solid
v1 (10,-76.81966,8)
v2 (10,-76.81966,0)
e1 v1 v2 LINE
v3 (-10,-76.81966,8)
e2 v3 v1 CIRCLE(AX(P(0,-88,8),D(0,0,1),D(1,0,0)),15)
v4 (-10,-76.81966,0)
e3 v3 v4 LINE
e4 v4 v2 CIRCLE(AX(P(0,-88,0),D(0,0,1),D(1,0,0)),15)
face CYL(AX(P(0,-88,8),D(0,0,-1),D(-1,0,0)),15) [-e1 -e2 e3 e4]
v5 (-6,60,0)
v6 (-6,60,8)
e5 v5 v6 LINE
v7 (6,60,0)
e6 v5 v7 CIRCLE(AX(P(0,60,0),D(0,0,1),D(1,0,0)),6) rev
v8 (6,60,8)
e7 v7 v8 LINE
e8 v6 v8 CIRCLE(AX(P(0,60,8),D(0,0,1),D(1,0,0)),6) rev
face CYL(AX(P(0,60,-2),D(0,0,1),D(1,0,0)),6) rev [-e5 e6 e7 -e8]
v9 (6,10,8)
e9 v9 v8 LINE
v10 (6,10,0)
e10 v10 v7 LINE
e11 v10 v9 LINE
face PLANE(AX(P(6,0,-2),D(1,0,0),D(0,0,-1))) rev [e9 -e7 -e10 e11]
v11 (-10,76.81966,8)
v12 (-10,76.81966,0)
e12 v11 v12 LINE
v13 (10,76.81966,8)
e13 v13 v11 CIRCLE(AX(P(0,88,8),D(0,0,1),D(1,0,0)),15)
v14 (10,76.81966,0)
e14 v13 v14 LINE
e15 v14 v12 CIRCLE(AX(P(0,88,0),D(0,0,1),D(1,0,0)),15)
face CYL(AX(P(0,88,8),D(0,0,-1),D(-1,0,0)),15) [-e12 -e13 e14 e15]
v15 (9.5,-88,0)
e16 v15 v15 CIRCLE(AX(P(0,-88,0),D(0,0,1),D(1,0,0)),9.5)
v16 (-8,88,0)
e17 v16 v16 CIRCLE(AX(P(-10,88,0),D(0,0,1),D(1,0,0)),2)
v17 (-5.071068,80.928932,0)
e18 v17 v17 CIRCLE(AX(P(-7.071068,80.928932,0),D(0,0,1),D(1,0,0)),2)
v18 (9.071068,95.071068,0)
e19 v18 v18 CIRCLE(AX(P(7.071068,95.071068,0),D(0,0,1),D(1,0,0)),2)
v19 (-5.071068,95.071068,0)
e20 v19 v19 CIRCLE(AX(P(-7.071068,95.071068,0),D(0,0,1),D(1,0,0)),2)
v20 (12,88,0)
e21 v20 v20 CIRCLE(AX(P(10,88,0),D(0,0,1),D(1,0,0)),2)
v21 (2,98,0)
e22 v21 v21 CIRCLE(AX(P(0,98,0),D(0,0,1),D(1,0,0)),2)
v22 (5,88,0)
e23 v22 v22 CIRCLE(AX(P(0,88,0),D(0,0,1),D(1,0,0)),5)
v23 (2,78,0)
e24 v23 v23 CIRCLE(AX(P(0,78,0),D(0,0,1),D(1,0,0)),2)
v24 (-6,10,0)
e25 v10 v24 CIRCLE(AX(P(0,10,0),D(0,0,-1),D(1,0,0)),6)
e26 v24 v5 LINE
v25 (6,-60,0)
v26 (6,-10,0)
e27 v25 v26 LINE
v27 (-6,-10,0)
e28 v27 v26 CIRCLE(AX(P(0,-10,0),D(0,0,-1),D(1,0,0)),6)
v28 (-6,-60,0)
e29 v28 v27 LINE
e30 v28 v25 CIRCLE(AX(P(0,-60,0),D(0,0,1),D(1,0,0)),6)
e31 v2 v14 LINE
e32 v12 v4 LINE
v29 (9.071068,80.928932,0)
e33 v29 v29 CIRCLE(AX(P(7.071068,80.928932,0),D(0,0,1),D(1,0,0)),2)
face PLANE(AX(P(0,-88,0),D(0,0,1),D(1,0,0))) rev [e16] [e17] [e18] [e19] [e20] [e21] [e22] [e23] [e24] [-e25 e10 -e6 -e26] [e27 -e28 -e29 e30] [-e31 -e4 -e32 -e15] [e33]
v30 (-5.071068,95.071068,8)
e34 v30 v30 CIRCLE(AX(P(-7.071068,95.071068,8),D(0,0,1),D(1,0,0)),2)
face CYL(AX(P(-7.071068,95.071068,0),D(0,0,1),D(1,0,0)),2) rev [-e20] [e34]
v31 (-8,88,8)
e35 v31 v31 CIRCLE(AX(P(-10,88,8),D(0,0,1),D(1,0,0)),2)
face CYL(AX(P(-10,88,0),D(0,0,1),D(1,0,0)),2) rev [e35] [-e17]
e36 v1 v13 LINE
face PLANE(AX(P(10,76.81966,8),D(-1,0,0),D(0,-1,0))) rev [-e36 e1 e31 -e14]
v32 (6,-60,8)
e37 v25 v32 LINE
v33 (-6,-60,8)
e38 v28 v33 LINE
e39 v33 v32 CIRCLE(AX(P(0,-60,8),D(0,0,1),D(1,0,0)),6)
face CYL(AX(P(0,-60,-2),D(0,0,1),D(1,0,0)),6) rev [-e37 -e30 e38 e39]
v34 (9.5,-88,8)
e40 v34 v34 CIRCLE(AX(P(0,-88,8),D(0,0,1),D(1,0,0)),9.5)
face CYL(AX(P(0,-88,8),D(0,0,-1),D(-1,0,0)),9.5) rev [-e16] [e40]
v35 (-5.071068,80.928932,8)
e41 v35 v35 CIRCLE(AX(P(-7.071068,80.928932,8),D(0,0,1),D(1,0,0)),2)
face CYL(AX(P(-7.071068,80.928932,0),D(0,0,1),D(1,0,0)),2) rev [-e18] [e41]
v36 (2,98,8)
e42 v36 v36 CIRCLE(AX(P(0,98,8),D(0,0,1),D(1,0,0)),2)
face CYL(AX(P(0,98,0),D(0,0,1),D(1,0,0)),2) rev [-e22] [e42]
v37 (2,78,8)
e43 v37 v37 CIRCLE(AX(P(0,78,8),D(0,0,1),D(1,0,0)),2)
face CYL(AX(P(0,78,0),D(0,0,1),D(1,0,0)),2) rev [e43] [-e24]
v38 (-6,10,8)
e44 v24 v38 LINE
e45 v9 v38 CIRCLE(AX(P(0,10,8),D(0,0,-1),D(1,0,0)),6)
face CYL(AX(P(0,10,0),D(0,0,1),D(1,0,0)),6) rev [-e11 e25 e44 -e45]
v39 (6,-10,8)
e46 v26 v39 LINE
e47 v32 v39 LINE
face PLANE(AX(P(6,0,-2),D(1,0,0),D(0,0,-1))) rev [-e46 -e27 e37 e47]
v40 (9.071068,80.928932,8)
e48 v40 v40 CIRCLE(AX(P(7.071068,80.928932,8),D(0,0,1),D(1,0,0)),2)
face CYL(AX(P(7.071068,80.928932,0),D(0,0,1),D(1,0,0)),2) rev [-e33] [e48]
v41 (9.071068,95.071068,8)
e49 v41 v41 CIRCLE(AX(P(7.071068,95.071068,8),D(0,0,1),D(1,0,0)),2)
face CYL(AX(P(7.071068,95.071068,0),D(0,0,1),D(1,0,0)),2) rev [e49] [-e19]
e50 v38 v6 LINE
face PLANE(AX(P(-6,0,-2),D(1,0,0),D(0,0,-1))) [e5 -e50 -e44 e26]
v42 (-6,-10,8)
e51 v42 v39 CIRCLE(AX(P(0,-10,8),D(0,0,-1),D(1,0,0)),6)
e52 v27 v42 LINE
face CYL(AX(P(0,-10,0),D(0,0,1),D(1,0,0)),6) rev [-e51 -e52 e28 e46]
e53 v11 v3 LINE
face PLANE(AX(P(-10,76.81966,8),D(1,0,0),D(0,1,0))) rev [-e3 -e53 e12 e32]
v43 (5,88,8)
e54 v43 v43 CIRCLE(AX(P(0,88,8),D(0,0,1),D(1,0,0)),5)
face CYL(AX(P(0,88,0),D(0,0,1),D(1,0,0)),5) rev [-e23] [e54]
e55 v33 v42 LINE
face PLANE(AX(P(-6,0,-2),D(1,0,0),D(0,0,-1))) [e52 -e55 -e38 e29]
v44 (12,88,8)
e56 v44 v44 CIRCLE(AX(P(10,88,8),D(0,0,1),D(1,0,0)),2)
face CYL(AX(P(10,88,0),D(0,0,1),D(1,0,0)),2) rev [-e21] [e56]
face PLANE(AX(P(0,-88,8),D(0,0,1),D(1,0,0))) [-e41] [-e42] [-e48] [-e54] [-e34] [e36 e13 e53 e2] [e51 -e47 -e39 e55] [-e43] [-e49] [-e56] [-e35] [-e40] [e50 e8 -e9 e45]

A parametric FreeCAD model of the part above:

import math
import FreeCAD as App
import Part
import Sketcher

V = App.Vector

doc = App.newDocument("Part")
body = doc.addObject("PartDesign::Body", "Body")

sketch1 = doc.addObject("Sketcher::SketchObject", "Sketch")
body.addObject(sketch1)
sketch1.AttachmentSupport = (doc.XY_Plane, [""])
sketch1.MapMode = "FlatFace"
sketch1.addGeometry([
    Part.LineSegment(V(-10, 77, 0), V(-10, -77, 0)),
    Part.ArcOfCircle(Part.Circle(V(0, -88, 0), V(0, 0, 1), 15), math.radians(132), math.radians(408)),
    Part.LineSegment(V(10, -77, 0), V(10, 77, 0)),
    Part.ArcOfCircle(Part.Circle(V(0, 88, 0), V(0, 0, 1), 15), math.radians(-48), math.radians(228)),
    Part.Circle(V(0, -88, 0), V(0, 0, 1), 10),
], False)
sketch1.addConstraint([
    Sketcher.Constraint("Coincident", 0, 2, 1, 1),
    Sketcher.Constraint("Coincident", 1, 2, 2, 1),
    Sketcher.Constraint("Coincident", 2, 2, 3, 1),
    Sketcher.Constraint("Coincident", 3, 2, 0, 1),
    Sketcher.Constraint("Vertical", 0),
    Sketcher.Constraint("Vertical", 2),
    Sketcher.Constraint("Coincident", 4, 3, 1, 3),
    Sketcher.Constraint("Equal", 1, 3),
    Sketcher.Constraint("Symmetric", 1, 3, 3, 3, -1, 1),
    Sketcher.Constraint("Symmetric", 0, 2, 1, 2, -2),
    Sketcher.Constraint("Diameter", 4, 19.0),
    Sketcher.Constraint("Radius", 1, 15.0),
    Sketcher.Constraint("DistanceY", 1, 3, -1, 1, 88.0),
    Sketcher.Constraint("DistanceX", 0, 2, -1, 1, 10.0),
])
pad1 = doc.addObject("PartDesign::Pad", "Pad")
body.addObject(pad1)
pad1.Profile = sketch1
pad1.Length = 8

sketch2 = doc.addObject("Sketcher::SketchObject", "Sketch001")
body.addObject(sketch2)
sketch2.AttachmentSupport = (doc.XY_Plane, [""])
sketch2.MapMode = "FlatFace"
sketch2.AttachmentOffset = App.Placement(V(0, 0, 8), App.Rotation())
sketch2.addGeometry([
    Part.Circle(V(0, 98, 0), V(0, 0, 1), 2),
    Part.Circle(V(10, 88, 0), V(0, 0, 1), 2),
    Part.Circle(V(0, 78, 0), V(0, 0, 1), 2),
    Part.Circle(V(-10, 88, 0), V(0, 0, 1), 2),
    Part.Circle(V(7.1, 95.1, 0), V(0, 0, 1), 2),
    Part.Circle(V(7.1, 80.9, 0), V(0, 0, 1), 2),
    Part.Circle(V(-7.1, 80.9, 0), V(0, 0, 1), 2),
    Part.Circle(V(-7.1, 95.1, 0), V(0, 0, 1), 2),
], False)
sketch2.addConstraint([
    Sketcher.Constraint("Equal", 0, 1),
    Sketcher.Constraint("Equal", 1, 2),
    Sketcher.Constraint("Equal", 2, 3),
    Sketcher.Constraint("Equal", 3, 4),
    Sketcher.Constraint("Equal", 4, 5),
    Sketcher.Constraint("Equal", 5, 6),
    Sketcher.Constraint("Equal", 6, 7),
    Sketcher.Constraint("Symmetric", 1, 3, 3, 3, -2),
    Sketcher.Constraint("Symmetric", 5, 3, 6, 3, -2),
    Sketcher.Constraint("Symmetric", 4, 3, 7, 3, -2),
    Sketcher.Constraint("PointOnObject", 0, 3, -2),
    Sketcher.Constraint("PointOnObject", 2, 3, -2),
    Sketcher.Constraint("Vertical", 4, 3, 5, 3),
    Sketcher.Constraint("Diameter", 0, 4.0),
    Sketcher.Constraint("DistanceY", -1, 1, 0, 3, 98.0),
    Sketcher.Constraint("DistanceX", -1, 1, 1, 3, 10.0),
    Sketcher.Constraint("DistanceY", -1, 1, 1, 3, 88.0),
    Sketcher.Constraint("DistanceY", -1, 1, 2, 3, 78.0),
    Sketcher.Constraint("DistanceX", -1, 1, 4, 3, 7.071068),
    Sketcher.Constraint("DistanceY", -1, 1, 4, 3, 95.071068),
    Sketcher.Constraint("DistanceY", -1, 1, 5, 3, 80.928932),
])
pocket1 = doc.addObject("PartDesign::Pocket", "Pocket")
body.addObject(pocket1)
pocket1.Profile = sketch2
pocket1.Length = 8

sketch3 = doc.addObject("Sketcher::SketchObject", "Sketch002")
body.addObject(sketch3)
sketch3.AttachmentSupport = (doc.XY_Plane, [""])
sketch3.MapMode = "FlatFace"
sketch3.AttachmentOffset = App.Placement(V(0, 0, 8), App.Rotation())
sketch3.addGeometry(Part.Circle(V(0, 88, 0), V(0, 0, 1), 5), False)
sketch3.addConstraint([
    Sketcher.Constraint("PointOnObject", 0, 3, -2),
    Sketcher.Constraint("Diameter", 0, 10.0),
    Sketcher.Constraint("DistanceY", -1, 1, 0, 3, 88.0),
])
pocket2 = doc.addObject("PartDesign::Pocket", "Pocket001")
body.addObject(pocket2)
pocket2.Profile = sketch3
pocket2.Length = 8

sketch4 = doc.addObject("Sketcher::SketchObject", "Sketch003")
body.addObject(sketch4)
sketch4.AttachmentSupport = (doc.XY_Plane, [""])
sketch4.MapMode = "FlatFace"
sketch4.AttachmentOffset = App.Placement(V(0, 0, 8), App.Rotation())
sketch4.addGeometry([
    Part.ArcOfCircle(Part.Circle(V(0, 60, 0), V(0, 0, 1), 6), math.radians(0), math.radians(180)),
    Part.LineSegment(V(-6, 60, 0), V(-6, -60, 0)),
    Part.ArcOfCircle(Part.Circle(V(0, -60, 0), V(0, 0, 1), 6), math.radians(180), math.radians(360)),
    Part.LineSegment(V(6, -60, 0), V(6, 60, 0)),
], False)
sketch4.addConstraint([
    Sketcher.Constraint("Tangent", 0, 2, 1, 1),
    Sketcher.Constraint("Tangent", 1, 2, 2, 1),
    Sketcher.Constraint("Tangent", 2, 2, 3, 1),
    Sketcher.Constraint("Tangent", 3, 2, 0, 1),
    Sketcher.Constraint("Vertical", 1),
    Sketcher.Constraint("Vertical", 3),
    Sketcher.Constraint("Symmetric", 0, 3, 2, 3, -1, 1),
    Sketcher.Constraint("Radius", 0, 6.0),
    Sketcher.Constraint("DistanceY", 1, 2, 1, 1, 120.0),
])
pocket3 = doc.addObject("PartDesign::Pocket", "Pocket002")
body.addObject(pocket3)
pocket3.Profile = sketch4
pocket3.Length = 10

sketch5 = doc.addObject("Sketcher::SketchObject", "Sketch004")
body.addObject(sketch5)
sketch5.AttachmentSupport = (doc.XY_Plane, [""])
sketch5.MapMode = "FlatFace"
sketch5.AttachmentOffset = App.Placement(V(0, 0, 8), App.Rotation())
sketch5.addGeometry([
    Part.LineSegment(V(-6, 10, 0), V(-6, -10, 0)),
    Part.ArcOfCircle(Part.Circle(V(0, -10, 0), V(0, 0, 1), 6), math.radians(0), math.radians(180)),
    Part.LineSegment(V(6, -10, 0), V(6, 10, 0)),
    Part.ArcOfCircle(Part.Circle(V(0, 10, 0), V(0, 0, 1), 6), math.radians(180), math.radians(360)),
], False)
sketch5.addConstraint([
    Sketcher.Constraint("Tangent", 0, 2, 1, 2),
    Sketcher.Constraint("Tangent", 1, 1, 2, 1),
    Sketcher.Constraint("Tangent", 2, 2, 3, 2),
    Sketcher.Constraint("Tangent", 3, 1, 0, 1),
    Sketcher.Constraint("Vertical", 0),
    Sketcher.Constraint("Vertical", 2),
    Sketcher.Constraint("Symmetric", 1, 3, 3, 3, -1, 1),
    Sketcher.Constraint("Radius", 1, 6.0),
    Sketcher.Constraint("DistanceY", 0, 2, 0, 1, 20.0),
])
pad2 = doc.addObject("PartDesign::Pad", "Pad001")
body.addObject(pad2)
pad2.Profile = sketch5
pad2.Length = 8
pad2.Reversed = True

doc.recompute()
